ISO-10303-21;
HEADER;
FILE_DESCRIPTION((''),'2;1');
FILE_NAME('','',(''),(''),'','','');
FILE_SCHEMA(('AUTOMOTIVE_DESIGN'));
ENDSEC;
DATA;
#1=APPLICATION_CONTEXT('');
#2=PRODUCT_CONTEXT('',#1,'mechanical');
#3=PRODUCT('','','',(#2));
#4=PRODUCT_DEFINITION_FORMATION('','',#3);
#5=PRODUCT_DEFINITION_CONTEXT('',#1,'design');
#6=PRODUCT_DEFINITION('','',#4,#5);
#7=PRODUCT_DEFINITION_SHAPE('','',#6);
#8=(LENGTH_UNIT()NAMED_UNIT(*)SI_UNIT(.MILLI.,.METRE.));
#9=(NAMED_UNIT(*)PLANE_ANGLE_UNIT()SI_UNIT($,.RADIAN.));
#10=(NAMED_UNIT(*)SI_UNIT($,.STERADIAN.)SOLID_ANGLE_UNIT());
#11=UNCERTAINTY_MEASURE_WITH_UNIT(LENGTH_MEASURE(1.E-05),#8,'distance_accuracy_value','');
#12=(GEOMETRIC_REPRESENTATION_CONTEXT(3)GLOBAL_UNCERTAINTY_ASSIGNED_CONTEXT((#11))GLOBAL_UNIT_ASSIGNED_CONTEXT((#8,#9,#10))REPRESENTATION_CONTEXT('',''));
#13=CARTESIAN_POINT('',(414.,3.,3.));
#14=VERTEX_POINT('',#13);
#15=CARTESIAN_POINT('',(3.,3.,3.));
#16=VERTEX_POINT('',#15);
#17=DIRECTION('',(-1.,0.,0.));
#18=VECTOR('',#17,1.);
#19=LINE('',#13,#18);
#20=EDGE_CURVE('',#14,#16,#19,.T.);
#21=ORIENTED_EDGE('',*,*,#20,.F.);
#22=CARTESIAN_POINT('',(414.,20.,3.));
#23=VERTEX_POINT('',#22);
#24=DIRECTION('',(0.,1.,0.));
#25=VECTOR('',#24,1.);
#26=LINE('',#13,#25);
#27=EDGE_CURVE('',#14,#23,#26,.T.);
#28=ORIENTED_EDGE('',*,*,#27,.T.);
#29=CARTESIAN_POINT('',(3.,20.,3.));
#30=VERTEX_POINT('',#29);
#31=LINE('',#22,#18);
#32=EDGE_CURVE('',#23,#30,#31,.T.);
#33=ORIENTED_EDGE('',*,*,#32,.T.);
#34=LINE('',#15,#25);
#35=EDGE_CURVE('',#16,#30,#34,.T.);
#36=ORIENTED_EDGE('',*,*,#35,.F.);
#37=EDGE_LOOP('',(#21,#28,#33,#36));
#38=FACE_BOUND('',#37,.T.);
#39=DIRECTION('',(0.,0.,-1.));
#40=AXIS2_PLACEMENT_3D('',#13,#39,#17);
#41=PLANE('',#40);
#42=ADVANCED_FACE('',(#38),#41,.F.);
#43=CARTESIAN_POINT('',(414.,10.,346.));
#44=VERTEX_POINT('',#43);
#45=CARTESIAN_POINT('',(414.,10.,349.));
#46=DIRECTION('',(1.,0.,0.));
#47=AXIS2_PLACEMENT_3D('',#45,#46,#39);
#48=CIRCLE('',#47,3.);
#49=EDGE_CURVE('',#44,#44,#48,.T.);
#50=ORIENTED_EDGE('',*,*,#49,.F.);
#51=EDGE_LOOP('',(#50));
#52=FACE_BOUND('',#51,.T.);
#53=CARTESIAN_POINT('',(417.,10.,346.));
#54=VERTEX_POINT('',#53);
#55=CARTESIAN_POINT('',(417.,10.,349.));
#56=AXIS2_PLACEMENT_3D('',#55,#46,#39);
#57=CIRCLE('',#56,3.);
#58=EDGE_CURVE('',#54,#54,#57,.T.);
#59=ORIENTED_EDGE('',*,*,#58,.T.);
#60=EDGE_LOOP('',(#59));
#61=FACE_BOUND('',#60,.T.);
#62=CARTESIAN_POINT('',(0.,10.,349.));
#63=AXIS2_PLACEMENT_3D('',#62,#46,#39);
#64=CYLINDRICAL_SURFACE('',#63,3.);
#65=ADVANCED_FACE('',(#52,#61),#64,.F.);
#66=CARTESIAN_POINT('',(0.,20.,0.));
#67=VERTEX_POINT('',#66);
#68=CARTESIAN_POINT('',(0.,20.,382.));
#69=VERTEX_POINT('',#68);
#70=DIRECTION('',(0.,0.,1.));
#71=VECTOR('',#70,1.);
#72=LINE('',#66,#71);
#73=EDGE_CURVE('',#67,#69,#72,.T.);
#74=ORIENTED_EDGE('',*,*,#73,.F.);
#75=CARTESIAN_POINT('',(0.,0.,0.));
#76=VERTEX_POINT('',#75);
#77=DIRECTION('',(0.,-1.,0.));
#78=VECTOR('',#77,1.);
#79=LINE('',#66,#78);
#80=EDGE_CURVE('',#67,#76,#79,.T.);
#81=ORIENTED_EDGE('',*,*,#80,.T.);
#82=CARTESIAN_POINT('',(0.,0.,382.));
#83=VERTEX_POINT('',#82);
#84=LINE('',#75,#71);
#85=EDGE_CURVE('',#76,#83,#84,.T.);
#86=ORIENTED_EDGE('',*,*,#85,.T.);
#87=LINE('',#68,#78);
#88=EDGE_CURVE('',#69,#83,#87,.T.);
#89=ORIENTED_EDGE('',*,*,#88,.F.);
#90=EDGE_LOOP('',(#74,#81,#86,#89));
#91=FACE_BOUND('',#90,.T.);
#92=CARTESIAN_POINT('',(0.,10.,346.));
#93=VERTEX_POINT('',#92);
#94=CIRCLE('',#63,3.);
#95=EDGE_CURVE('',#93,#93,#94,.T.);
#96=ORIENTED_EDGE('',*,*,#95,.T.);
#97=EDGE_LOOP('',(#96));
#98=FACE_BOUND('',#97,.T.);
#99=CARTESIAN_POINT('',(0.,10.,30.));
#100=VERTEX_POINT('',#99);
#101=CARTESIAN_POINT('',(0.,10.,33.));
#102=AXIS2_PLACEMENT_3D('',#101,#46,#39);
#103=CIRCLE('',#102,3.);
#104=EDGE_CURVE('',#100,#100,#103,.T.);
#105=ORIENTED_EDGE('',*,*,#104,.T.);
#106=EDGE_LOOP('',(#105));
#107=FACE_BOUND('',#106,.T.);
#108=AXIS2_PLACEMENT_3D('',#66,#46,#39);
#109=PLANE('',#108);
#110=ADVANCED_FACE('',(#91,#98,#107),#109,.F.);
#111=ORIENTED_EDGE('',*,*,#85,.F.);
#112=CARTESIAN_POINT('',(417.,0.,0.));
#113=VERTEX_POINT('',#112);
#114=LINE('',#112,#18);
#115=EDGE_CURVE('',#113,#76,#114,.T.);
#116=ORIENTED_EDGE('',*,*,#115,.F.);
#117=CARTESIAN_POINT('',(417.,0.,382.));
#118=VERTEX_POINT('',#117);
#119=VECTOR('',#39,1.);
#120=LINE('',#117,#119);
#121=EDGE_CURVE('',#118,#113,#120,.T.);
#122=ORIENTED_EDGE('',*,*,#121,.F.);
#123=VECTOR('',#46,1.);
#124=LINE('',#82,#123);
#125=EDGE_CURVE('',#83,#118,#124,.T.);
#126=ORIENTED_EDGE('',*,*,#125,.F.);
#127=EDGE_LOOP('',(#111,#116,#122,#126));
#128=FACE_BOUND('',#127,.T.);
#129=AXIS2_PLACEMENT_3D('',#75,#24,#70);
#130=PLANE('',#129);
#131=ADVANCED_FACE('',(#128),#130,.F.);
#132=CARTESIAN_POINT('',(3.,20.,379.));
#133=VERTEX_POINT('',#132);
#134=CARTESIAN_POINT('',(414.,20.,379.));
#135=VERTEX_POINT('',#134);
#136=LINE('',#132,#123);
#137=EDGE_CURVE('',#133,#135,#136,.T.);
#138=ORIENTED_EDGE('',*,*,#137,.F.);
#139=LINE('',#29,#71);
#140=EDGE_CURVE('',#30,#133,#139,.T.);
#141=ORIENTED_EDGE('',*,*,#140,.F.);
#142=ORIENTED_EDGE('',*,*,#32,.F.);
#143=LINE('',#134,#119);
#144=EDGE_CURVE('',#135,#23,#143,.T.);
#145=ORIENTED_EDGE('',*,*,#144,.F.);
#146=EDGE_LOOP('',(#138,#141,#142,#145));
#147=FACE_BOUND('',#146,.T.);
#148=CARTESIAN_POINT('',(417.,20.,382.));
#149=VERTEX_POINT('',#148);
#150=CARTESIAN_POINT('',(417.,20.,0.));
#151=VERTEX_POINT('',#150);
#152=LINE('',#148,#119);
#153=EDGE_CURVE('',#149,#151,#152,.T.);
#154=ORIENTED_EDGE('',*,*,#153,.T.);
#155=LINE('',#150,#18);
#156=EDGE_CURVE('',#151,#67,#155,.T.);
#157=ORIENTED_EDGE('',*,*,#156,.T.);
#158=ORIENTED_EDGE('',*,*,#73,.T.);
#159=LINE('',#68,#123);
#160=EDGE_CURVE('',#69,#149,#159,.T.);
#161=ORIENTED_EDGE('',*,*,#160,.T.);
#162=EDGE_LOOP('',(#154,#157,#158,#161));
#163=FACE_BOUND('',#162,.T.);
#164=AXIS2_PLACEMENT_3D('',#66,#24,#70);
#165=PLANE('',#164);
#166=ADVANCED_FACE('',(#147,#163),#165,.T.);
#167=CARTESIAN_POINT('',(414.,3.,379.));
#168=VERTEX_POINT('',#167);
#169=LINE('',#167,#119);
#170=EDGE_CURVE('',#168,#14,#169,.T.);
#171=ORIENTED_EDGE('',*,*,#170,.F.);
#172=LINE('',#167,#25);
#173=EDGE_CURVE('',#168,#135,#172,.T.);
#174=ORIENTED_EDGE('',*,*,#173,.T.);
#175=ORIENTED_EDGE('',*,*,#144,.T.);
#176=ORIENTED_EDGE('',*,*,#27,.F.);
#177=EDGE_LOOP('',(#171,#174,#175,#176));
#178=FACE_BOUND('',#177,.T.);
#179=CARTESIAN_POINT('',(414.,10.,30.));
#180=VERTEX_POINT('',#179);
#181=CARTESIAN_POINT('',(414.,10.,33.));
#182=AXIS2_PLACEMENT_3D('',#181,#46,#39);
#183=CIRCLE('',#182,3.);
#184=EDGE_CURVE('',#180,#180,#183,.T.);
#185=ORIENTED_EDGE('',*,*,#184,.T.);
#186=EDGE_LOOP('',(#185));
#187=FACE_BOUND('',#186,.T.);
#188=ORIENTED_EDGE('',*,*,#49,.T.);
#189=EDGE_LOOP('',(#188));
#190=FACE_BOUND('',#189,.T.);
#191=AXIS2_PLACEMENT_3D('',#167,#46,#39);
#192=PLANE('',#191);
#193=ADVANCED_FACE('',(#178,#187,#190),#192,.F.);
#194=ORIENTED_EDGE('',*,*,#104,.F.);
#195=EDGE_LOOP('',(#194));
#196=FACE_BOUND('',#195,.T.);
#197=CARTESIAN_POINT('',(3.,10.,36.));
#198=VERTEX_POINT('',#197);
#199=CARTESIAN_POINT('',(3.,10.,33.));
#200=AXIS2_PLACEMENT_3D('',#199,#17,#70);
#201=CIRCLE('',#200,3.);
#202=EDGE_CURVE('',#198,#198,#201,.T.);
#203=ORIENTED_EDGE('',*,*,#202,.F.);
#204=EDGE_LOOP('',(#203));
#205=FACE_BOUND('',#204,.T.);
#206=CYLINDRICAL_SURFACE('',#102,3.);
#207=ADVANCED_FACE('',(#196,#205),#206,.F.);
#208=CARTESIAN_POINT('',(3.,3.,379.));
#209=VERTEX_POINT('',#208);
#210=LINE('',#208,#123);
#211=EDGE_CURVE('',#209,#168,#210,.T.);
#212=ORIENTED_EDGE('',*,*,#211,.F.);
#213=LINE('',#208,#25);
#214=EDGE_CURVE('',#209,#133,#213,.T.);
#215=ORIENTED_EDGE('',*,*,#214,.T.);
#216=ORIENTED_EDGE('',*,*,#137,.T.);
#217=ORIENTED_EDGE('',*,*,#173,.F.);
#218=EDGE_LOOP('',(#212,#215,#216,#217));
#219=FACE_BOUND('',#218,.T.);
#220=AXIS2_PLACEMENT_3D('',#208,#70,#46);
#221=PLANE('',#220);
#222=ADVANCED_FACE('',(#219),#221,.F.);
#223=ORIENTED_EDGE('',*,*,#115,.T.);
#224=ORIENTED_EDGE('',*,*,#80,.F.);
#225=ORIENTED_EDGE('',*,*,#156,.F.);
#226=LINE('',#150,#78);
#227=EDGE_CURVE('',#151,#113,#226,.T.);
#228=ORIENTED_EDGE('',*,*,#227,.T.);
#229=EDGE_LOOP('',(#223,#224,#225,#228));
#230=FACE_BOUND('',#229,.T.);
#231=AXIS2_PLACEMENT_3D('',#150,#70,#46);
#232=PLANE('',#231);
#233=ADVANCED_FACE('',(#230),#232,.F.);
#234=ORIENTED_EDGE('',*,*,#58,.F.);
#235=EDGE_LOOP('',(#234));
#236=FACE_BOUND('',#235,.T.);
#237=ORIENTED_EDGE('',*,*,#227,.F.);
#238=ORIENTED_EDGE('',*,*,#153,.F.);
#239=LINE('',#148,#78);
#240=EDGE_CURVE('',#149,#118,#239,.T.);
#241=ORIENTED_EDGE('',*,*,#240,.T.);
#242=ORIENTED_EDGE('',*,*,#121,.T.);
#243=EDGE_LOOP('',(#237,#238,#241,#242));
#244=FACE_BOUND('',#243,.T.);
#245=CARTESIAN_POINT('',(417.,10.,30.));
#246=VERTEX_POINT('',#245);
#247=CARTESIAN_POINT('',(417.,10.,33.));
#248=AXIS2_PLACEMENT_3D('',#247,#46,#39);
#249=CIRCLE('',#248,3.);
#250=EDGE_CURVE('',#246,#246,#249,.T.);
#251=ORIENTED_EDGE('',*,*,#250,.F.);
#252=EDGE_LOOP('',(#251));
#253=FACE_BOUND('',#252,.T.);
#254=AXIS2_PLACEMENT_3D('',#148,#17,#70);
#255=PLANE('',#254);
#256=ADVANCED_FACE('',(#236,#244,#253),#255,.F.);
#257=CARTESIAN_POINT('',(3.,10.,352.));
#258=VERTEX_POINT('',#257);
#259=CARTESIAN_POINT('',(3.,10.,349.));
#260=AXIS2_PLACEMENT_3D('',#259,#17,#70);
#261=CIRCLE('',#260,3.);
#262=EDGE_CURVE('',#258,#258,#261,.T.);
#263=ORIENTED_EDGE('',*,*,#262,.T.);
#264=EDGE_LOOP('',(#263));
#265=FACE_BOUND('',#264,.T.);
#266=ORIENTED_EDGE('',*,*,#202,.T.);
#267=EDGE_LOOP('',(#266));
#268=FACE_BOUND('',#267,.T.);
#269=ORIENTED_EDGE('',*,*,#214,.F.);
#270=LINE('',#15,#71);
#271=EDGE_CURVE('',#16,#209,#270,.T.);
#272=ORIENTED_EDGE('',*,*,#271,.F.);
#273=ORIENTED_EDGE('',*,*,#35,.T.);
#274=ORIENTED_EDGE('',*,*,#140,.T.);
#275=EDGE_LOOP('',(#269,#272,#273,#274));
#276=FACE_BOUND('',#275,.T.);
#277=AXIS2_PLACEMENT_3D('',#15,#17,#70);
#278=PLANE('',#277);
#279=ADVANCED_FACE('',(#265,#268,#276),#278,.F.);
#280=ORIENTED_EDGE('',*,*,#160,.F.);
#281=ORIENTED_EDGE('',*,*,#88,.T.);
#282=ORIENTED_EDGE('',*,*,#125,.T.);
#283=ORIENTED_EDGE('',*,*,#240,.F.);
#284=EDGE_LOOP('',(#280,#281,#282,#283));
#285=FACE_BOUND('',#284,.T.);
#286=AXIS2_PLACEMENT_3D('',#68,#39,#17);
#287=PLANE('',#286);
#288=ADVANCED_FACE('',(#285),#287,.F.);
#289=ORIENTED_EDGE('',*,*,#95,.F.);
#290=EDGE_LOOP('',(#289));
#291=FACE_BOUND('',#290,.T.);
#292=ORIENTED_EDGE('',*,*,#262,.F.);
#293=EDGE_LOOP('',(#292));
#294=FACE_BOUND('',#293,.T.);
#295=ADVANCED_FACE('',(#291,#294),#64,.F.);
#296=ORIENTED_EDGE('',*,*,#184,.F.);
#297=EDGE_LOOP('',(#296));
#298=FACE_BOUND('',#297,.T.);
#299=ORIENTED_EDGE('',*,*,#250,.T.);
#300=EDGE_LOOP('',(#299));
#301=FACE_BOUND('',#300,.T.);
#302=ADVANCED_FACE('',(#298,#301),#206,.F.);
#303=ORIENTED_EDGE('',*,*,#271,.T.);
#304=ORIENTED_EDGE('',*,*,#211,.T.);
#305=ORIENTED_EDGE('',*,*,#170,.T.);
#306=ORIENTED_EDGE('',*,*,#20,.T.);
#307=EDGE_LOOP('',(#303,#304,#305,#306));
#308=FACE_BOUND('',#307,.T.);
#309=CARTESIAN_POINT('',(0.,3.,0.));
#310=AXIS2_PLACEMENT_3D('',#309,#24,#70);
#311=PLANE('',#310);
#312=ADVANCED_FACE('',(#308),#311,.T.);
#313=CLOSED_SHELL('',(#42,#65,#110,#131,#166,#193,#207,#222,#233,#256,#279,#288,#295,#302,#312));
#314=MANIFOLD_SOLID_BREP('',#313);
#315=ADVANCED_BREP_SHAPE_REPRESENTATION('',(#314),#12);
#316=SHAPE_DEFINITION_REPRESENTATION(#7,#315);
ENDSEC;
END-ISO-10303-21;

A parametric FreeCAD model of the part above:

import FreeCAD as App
import Part
import Sketcher
from FreeCAD import Vector
Q = App.Units.Quantity


def add_polygon(sketch, points):
    """Adds a closed chain of lines whose ends are joined by coincident constraints."""
    first, n = sketch.GeometryCount, len(points)
    for a, b in zip(points, points[1:] + points[:1]):
        sketch.addGeometry(Part.LineSegment(App.Vector(*a, 0), App.Vector(*b, 0)), False)
    for i in range(n):
        sketch.addConstraint(Sketcher.Constraint("Coincident", first + i, 2, first + (i + 1) % n, 1))

doc = App.newDocument("Part")
body = doc.addObject("PartDesign::Body", "Body")

sketch1 = body.newObject("Sketcher::SketchObject", "Sketch")
sketch1.AttachmentSupport = (doc.getObject("XZ_Plane"), [""])
sketch1.MapMode = "FlatFace"
add_polygon(sketch1, [(0, 0), (0, 382), (417, 382), (417, 0)])
sketch1.addConstraint(Sketcher.Constraint("Vertical", 0))
sketch1.addConstraint(Sketcher.Constraint("Horizontal", 1))
sketch1.addConstraint(Sketcher.Constraint("Vertical", 2))
sketch1.addConstraint(Sketcher.Constraint("Horizontal", 3))
sketch1.addConstraint(Sketcher.Constraint("Coincident", 3, 2, -1, 1))
sketch1.addConstraint(Sketcher.Constraint("DistanceX", 1, 1, 1, 2, Q("417 mm")))
sketch1.addConstraint(Sketcher.Constraint("DistanceY", 0, 1, 0, 2, Q("382 mm")))
pad1 = body.newObject("PartDesign::Pad", "Pad")
pad1.Profile = sketch1
pad1.Length = 20
pad1.Reversed = True

sketch2 = body.newObject("Sketcher::SketchObject", "Sketch001")
sketch2.AttachmentSupport = (doc.getObject("XZ_Plane"), [""])
sketch2.MapMode = "FlatFace"
sketch2.AttachmentOffset = App.Placement(Vector(0, 0, -20), App.Rotation())
add_polygon(sketch2, [(3, 3), (3, 379), (414, 379), (414, 3)])
sketch2.addConstraint(Sketcher.Constraint("Vertical", 0))
sketch2.addConstraint(Sketcher.Constraint("Horizontal", 1))
sketch2.addConstraint(Sketcher.Constraint("Vertical", 2))
sketch2.addConstraint(Sketcher.Constraint("Horizontal", 3))
sketch2.addConstraint(Sketcher.Constraint("DistanceX", 1, 1, 1, 2, Q("411 mm")))
sketch2.addConstraint(Sketcher.Constraint("DistanceY", 0, 1, 0, 2, Q("376 mm")))
sketch2.addConstraint(Sketcher.Constraint("DistanceX", -1, 1, 0, 2, Q("3 mm")))
sketch2.addConstraint(Sketcher.Constraint("DistanceY", -1, 1, 0, 2, Q("379 mm")))
pocket1 = body.newObject("PartDesign::Pocket", "Pocket")
pocket1.Profile = sketch2
pocket1.Length = 17
pocket1.Reversed = True

sketch3 = body.newObject("Sketcher::SketchObject", "Sketch002")
sketch3.AttachmentSupport = (doc.getObject("YZ_Plane"), [""])
sketch3.MapMode = "FlatFace"
sketch3.AttachmentOffset = App.Placement(Vector(0, 0, 417), App.Rotation())
sketch3.addGeometry(Part.Circle(Vector(10, 33, 0), Vector(0, 0, 1), 3), False)
sketch3.addGeometry(Part.Circle(Vector(10, 349, 0), Vector(0, 0, 1), 3), False)
sketch3.addConstraint(Sketcher.Constraint("Equal", 0, 1))
sketch3.addConstraint(Sketcher.Constraint("Vertical", 0, 3, 1, 3))
sketch3.addConstraint(Sketcher.Constraint("Diameter", 0, Q("6 mm")))
sketch3.addConstraint(Sketcher.Constraint("DistanceX", -1, 1, 0, 3, Q("10 mm")))
sketch3.addConstraint(Sketcher.Constraint("DistanceY", -1, 1, 0, 3, Q("33 mm")))
sketch3.addConstraint(Sketcher.Constraint("DistanceY", -1, 1, 1, 3, Q("349 mm")))
pocket2 = body.newObject("PartDesign::Pocket", "Pocket001")
pocket2.Profile = sketch3
pocket2.Type = "ThroughAll"

doc.recompute()
